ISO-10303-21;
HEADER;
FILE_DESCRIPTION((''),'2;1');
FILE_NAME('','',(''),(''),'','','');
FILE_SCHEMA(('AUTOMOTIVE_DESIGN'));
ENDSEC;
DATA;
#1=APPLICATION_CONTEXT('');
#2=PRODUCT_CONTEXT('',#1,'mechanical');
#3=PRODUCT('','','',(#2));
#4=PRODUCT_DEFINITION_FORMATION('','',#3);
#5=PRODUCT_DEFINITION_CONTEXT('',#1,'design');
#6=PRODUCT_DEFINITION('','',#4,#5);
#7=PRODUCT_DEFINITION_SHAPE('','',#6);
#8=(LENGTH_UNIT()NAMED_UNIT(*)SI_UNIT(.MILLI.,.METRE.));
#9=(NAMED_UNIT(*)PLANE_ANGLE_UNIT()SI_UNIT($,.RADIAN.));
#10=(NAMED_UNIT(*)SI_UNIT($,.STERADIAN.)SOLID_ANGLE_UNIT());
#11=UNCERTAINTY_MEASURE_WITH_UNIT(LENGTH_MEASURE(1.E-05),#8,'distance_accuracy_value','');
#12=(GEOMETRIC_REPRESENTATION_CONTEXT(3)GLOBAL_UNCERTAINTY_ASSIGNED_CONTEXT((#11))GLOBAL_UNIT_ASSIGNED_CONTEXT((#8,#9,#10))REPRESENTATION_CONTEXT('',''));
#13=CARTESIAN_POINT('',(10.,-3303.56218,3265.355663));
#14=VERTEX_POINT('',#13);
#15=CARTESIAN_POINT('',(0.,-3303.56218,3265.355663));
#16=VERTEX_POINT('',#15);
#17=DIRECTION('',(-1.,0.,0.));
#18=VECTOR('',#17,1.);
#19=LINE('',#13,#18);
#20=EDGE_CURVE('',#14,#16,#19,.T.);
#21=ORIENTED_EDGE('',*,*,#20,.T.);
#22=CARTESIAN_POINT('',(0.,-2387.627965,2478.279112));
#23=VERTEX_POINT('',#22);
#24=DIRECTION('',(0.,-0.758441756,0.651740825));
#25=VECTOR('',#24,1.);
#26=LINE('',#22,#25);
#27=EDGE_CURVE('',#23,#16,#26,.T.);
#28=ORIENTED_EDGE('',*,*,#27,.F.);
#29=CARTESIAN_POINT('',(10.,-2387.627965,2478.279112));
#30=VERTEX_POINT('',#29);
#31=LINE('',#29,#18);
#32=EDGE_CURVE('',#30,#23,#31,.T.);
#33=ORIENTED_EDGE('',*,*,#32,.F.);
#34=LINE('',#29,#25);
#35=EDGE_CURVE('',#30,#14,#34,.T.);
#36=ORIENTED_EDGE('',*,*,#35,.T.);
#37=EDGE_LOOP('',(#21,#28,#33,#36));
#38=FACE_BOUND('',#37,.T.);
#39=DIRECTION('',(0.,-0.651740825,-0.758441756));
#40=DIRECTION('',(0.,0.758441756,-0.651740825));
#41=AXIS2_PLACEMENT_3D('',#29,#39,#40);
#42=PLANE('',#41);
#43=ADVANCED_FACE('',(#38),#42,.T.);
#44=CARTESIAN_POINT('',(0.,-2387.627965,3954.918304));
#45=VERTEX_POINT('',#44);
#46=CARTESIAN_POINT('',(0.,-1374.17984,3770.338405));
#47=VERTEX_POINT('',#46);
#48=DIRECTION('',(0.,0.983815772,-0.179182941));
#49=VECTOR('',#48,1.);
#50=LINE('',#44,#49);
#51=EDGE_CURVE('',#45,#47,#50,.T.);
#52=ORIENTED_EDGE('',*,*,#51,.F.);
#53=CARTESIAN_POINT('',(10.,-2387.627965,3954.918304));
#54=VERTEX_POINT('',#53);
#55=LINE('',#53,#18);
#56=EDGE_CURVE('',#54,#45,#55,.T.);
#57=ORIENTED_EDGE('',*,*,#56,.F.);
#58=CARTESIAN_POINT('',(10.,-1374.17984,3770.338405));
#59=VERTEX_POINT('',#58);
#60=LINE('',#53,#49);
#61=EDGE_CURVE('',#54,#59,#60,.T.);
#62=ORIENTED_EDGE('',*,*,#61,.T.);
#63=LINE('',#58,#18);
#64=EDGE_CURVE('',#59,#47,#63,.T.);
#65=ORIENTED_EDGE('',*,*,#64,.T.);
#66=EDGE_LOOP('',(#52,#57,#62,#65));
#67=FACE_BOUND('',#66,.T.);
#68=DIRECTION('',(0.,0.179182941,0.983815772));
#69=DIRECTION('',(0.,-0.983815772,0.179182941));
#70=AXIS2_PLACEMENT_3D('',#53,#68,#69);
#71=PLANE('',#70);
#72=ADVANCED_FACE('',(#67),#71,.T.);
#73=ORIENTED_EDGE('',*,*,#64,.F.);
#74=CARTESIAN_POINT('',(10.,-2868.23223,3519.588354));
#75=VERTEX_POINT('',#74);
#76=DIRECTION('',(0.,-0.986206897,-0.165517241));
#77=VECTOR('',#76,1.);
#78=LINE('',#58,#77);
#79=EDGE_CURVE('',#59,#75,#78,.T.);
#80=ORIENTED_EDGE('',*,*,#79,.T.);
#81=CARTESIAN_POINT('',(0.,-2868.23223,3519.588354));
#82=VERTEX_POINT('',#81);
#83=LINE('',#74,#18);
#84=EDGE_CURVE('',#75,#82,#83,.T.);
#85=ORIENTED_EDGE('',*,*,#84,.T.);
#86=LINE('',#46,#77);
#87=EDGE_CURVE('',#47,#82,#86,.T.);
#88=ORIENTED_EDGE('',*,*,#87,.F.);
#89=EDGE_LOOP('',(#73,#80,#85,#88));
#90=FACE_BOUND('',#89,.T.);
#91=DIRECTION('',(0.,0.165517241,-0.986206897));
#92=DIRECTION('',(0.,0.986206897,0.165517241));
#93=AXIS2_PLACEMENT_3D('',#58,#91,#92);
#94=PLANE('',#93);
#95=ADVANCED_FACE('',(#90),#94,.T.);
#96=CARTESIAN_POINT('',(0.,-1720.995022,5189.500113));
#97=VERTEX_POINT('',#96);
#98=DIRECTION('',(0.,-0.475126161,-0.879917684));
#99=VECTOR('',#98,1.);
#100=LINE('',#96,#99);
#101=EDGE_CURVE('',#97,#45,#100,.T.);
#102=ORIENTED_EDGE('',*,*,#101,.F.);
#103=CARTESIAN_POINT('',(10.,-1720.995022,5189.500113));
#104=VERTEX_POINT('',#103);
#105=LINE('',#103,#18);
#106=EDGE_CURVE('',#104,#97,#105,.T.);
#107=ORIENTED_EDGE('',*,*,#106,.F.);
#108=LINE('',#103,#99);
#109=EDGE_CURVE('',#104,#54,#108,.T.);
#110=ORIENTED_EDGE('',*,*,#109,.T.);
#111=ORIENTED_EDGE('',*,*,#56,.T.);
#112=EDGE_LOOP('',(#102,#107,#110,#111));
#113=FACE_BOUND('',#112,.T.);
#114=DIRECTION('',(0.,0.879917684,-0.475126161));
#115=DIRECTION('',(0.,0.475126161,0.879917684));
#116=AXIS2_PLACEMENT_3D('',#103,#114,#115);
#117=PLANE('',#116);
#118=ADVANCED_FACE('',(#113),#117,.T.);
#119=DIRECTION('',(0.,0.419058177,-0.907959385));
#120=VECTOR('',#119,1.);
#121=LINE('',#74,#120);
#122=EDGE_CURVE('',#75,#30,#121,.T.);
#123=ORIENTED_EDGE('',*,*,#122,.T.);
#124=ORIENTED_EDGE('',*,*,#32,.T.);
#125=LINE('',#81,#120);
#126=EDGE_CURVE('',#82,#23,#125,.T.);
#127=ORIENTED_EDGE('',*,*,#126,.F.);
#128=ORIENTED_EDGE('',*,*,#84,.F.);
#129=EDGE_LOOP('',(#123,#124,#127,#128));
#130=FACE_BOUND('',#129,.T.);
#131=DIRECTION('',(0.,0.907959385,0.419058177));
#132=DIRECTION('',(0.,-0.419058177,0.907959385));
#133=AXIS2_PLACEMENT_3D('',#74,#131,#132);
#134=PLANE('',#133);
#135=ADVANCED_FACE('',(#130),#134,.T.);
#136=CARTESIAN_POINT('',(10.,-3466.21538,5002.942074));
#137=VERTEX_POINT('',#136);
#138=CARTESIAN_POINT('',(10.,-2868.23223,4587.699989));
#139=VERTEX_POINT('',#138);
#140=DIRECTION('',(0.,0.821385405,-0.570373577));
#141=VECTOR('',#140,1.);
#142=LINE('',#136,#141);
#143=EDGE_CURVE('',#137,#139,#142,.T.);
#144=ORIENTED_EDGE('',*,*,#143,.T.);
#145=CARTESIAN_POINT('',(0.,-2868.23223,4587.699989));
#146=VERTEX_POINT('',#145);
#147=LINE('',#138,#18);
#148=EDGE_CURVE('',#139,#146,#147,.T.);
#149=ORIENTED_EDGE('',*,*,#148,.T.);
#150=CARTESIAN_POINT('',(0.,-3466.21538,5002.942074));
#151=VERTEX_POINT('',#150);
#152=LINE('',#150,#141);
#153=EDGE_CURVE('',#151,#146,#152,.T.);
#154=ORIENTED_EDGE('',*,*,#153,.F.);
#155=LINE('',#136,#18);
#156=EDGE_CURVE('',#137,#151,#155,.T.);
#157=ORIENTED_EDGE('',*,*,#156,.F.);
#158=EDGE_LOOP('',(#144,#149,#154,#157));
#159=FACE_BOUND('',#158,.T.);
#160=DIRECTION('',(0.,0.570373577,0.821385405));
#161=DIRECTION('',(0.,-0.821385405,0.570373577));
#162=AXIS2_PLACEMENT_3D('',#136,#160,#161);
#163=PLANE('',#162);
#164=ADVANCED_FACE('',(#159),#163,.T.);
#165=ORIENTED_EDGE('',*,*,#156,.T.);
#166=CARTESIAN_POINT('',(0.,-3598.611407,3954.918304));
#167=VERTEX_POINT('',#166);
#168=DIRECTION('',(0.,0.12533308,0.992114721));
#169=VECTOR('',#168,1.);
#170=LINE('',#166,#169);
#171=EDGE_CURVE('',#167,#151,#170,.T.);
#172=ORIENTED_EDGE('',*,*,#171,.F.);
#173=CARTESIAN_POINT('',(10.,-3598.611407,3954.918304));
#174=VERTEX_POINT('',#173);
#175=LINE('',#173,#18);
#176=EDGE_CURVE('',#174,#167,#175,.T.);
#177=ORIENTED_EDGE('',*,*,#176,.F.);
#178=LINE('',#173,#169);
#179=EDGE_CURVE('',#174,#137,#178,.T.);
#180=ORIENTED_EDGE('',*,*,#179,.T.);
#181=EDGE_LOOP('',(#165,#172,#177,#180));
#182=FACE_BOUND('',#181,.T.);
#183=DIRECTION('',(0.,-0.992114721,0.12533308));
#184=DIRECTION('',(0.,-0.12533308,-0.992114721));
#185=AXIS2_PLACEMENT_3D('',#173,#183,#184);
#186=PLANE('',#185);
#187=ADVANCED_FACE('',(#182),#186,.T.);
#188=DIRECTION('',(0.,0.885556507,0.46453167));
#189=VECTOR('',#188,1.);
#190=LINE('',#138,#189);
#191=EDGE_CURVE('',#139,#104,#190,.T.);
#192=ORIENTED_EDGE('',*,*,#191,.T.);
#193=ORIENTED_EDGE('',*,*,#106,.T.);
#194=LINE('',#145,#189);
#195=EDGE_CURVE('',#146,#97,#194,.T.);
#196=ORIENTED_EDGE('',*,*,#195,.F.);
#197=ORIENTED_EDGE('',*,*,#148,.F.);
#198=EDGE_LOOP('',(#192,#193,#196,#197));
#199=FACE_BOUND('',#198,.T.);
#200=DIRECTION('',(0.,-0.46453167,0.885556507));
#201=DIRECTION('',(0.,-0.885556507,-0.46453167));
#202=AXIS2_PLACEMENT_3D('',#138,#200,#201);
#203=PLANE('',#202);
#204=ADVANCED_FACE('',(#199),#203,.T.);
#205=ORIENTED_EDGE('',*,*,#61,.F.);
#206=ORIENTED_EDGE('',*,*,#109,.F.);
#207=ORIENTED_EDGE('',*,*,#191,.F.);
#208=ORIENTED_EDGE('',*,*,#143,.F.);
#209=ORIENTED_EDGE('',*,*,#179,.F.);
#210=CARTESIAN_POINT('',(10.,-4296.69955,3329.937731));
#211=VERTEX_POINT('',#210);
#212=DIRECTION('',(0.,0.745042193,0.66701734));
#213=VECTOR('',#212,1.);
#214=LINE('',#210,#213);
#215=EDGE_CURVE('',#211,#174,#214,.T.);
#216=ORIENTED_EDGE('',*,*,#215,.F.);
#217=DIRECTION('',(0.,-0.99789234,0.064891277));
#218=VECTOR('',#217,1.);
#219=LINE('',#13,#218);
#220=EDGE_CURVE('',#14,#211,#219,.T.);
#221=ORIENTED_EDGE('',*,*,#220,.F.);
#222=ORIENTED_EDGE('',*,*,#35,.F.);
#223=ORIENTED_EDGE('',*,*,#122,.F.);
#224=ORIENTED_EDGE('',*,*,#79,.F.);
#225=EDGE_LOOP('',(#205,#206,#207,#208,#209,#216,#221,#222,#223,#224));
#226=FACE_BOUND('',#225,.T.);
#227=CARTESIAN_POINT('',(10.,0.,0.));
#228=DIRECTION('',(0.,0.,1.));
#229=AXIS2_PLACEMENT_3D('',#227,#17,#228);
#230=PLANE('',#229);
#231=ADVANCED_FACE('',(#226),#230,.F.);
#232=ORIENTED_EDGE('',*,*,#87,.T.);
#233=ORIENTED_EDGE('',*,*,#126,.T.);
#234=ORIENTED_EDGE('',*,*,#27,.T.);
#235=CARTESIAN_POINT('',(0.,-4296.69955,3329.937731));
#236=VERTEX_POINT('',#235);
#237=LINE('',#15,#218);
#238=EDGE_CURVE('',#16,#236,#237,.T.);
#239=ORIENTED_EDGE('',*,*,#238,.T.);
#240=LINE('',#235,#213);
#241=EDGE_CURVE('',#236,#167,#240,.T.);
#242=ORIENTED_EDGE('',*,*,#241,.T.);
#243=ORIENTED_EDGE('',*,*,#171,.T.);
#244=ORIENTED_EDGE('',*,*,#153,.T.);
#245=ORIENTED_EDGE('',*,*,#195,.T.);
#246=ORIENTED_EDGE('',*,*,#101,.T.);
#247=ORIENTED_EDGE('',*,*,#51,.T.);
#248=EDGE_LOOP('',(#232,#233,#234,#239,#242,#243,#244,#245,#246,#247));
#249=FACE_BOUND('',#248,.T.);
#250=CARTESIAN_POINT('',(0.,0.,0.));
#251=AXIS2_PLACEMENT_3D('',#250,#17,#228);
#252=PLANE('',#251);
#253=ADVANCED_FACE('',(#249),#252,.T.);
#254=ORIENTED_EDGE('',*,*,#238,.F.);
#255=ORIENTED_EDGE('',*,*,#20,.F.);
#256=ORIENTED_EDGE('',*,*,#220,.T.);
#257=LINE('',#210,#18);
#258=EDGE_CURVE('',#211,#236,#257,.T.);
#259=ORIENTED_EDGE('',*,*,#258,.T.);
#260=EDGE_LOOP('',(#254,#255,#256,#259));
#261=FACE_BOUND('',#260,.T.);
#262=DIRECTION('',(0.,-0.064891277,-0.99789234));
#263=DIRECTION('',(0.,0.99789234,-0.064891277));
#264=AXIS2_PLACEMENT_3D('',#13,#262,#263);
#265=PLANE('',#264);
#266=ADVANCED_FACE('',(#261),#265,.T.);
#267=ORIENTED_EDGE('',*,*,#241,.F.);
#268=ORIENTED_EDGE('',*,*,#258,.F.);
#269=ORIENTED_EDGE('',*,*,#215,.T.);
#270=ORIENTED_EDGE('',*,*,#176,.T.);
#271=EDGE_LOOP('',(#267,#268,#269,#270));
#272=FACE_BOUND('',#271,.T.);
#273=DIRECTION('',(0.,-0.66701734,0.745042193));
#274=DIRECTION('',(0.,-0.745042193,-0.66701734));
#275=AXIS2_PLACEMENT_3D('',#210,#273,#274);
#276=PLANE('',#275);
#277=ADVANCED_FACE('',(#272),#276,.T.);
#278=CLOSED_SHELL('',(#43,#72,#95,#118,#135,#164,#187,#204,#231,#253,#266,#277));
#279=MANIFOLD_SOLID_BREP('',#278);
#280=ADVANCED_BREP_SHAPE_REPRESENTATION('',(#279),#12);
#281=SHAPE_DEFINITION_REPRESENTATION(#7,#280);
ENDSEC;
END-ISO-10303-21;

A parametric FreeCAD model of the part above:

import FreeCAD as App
import Part
import Sketcher

V = App.Vector
Q = App.Units.Quantity


def add_polygon(sketch, points):
    """Adds a closed chain of lines whose ends are joined by coincident constraints."""
    first, n = sketch.GeometryCount, len(points)
    for a, b in zip(points, points[1:] + points[:1]):
        sketch.addGeometry(Part.LineSegment(App.Vector(*a, 0), App.Vector(*b, 0)), False)
    for i in range(n):
        sketch.addConstraint(Sketcher.Constraint("Coincident", first + i, 2, first + (i + 1) % n, 1))

doc = App.newDocument("Part")
body = doc.addObject("PartDesign::Body", "Body")

# Sketch on YZ plane
sketch1 = body.newObject("Sketcher::SketchObject", "Sketch")
sketch1.AttachmentSupport = (doc.getObject("YZ_Plane"), [""])
sketch1.MapMode = "FlatFace"
add_polygon(sketch1, [(-1374.17984, 3770.338405), (-2387.627965, 3954.918304), (-1720.995022, 5189.500113), (-2868.23223, 4587.699989), (-3466.21538, 5002.942074), (-3598.611407, 3954.918304), (-4296.69955, 3329.937731), (-3303.56218, 3265.355663), (-2387.627965, 2478.279112), (-2868.23223, 3519.588354)])  # lines 0-9
sketch1.addConstraint(Sketcher.Constraint("Horizontal", 0, 2, 4, 2))
sketch1.addConstraint(Sketcher.Constraint("Vertical", 0, 2, 7, 2))
sketch1.addConstraint(Sketcher.Constraint("Vertical", 2, 2, 8, 2))
sketch1.addConstraint(Sketcher.Constraint("Angle", 4, Q("-97.199991 deg")))
sketch1.addConstraint(Sketcher.Constraint("Distance", 5, 936.978))
sketch1.addConstraint(Sketcher.Constraint("DistanceX", 3, 2, 6, 2, 162.6532))
sketch1.addConstraint(Sketcher.Constraint("DistanceY", 9, 2, 0, 2, 184.579899))
sketch1.addConstraint(Sketcher.Constraint("Distance", 0, 1030.119818))
sketch1.addConstraint(Sketcher.Constraint("Distance", 2, 1295.498591))
sketch1.addConstraint(Sketcher.Constraint("DistanceX", 2, 2, -1, 1, 2868.23223))
sketch1.addConstraint(Sketcher.Constraint("DistanceY", -1, 1, 2, 2, 4587.699989))
sketch1.addConstraint(Sketcher.Constraint("DistanceX", 3, 2, -1, 1, 3466.21538))
sketch1.addConstraint(Sketcher.Constraint("DistanceX", 5, 2, -1, 1, 4296.69955))
sketch1.addConstraint(Sketcher.Constraint("DistanceY", -1, 1, 5, 2, 3329.937731))
sketch1.addConstraint(Sketcher.Constraint("DistanceX", 9, 2, -1, 1, 1374.17984))
sketch1.addConstraint(Sketcher.Constraint("DistanceY", 0, 2, 1, 2, 1234.581809))
sketch1.addConstraint(Sketcher.Constraint("DistanceY", 0, 2, 3, 2, 1048.02377))
sketch1.addConstraint(Sketcher.Constraint("DistanceY", 6, 2, 4, 2, 689.562641))
sketch1.addConstraint(Sketcher.Constraint("DistanceY", 7, 2, 6, 2, 787.07655))
sketch1.addConstraint(Sketcher.Constraint("DistanceY", 6, 2, 8, 2, 254.232691))
pad1 = body.newObject("PartDesign::Pad", "Pad")
pad1.Profile = sketch1
pad1.Length = 10

doc.recompute()
